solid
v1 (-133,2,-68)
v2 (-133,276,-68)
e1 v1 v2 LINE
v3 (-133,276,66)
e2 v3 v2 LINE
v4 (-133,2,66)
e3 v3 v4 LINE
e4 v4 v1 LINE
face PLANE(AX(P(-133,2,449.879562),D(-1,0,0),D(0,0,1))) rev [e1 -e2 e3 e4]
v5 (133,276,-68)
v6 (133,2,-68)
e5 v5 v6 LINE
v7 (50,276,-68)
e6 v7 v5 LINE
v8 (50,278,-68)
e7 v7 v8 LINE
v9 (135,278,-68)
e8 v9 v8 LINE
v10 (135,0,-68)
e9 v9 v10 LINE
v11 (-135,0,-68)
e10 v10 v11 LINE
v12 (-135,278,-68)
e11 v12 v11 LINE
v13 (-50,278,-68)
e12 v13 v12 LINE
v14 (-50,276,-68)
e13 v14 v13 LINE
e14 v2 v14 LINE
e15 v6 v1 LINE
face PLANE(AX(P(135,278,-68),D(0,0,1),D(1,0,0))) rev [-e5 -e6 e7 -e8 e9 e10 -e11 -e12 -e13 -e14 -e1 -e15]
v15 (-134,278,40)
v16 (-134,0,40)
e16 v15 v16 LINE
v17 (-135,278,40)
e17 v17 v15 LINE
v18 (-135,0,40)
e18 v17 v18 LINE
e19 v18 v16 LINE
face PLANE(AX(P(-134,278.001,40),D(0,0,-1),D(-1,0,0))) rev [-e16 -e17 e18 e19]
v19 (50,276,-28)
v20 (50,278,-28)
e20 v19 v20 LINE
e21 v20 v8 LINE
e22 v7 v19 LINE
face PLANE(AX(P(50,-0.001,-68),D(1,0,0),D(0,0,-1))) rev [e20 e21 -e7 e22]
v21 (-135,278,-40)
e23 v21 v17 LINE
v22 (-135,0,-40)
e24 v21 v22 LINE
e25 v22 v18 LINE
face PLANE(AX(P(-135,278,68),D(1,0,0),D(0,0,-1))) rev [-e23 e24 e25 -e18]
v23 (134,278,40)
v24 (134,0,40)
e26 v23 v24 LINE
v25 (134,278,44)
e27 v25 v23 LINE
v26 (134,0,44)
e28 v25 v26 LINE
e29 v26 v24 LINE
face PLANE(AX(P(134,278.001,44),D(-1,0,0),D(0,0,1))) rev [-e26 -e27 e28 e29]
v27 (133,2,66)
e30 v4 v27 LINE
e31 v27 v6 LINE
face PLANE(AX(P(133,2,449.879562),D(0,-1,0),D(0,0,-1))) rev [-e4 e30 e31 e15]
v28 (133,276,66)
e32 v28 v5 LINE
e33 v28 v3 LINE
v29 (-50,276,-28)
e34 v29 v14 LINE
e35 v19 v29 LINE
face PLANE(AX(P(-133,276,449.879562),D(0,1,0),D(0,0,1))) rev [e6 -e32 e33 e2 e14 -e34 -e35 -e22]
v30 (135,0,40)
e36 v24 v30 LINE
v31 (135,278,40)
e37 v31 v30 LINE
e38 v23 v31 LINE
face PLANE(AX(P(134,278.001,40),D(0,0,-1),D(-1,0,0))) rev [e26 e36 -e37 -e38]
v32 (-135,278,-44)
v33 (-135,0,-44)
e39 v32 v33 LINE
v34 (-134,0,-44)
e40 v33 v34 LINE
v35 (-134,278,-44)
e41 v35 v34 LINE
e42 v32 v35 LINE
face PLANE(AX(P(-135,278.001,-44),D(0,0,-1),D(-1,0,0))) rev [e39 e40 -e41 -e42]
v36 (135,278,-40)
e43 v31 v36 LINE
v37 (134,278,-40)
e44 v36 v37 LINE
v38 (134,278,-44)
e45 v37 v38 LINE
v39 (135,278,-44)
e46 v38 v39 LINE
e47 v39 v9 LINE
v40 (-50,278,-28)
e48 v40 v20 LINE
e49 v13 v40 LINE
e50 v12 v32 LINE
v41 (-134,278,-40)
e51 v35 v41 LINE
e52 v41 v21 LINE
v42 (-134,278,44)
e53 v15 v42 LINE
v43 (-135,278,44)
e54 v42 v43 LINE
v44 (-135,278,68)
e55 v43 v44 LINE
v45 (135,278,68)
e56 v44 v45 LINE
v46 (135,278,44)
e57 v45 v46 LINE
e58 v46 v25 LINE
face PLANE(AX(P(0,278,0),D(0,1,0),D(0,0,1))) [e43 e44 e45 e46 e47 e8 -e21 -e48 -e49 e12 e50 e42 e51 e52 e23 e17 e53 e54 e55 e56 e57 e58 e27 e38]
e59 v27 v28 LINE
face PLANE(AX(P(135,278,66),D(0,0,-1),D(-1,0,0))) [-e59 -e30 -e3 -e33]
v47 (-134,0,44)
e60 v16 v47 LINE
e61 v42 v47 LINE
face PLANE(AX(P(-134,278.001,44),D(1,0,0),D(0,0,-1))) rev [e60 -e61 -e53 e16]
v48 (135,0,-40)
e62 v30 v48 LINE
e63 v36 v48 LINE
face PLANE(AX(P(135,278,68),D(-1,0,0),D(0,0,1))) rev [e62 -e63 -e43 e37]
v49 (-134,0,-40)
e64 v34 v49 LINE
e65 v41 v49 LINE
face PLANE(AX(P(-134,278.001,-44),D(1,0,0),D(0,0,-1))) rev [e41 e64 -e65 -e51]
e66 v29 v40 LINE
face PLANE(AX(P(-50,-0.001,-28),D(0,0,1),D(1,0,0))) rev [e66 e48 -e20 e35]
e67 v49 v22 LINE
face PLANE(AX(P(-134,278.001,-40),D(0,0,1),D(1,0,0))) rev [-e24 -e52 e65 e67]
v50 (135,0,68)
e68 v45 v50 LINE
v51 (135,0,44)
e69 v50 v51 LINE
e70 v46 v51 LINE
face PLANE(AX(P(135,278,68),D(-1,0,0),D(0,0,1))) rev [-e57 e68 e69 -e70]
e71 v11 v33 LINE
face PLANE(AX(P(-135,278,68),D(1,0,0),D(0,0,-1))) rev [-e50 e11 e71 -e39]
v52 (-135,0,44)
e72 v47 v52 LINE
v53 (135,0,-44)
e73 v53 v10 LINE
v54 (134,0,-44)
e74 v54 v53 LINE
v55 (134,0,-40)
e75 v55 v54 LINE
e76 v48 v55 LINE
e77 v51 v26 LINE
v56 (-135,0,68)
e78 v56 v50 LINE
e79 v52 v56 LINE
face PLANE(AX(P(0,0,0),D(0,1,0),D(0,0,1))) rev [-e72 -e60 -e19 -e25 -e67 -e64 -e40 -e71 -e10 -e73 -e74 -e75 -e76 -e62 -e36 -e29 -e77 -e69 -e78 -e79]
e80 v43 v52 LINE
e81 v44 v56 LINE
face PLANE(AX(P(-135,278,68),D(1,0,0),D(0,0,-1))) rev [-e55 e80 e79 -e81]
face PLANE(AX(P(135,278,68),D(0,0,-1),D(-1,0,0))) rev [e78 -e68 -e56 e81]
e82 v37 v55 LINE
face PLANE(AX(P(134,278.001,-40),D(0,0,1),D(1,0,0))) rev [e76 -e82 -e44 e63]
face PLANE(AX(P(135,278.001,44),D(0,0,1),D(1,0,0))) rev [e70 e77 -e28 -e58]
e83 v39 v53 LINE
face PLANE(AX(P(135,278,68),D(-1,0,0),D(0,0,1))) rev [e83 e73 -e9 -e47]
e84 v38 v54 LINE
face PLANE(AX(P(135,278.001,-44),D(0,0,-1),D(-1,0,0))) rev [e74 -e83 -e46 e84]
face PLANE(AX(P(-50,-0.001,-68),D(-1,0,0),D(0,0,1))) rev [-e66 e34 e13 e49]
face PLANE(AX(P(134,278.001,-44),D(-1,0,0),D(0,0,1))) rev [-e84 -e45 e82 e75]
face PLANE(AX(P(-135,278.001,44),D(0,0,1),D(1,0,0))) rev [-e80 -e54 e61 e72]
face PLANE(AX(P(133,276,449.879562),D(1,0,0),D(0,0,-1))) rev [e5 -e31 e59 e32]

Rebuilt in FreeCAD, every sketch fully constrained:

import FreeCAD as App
import Part
import Sketcher

V = App.Vector

doc = App.newDocument("Part")
body = doc.addObject("PartDesign::Body", "Body")

sketch1 = body.newObject("Sketcher::SketchObject", "Sketch")
sketch1.AttachmentSupport = (doc.getObject("XZ_Plane"), [""])
sketch1.MapMode = "FlatFace"
sketch1.addGeometry(Part.LineSegment(V(-135, -68, 0), V(-135, 68, 0)), False)
sketch1.addGeometry(Part.LineSegment(V(-135, 68, 0), V(135, 68, 0)), False)
sketch1.addGeometry(Part.LineSegment(V(135, 68, 0), V(135, -68, 0)), False)
sketch1.addGeometry(Part.LineSegment(V(135, -68, 0), V(-135, -68, 0)), False)
sketch1.addConstraint(Sketcher.Constraint("Coincident", 0, 2, 1, 1))
sketch1.addConstraint(Sketcher.Constraint("Coincident", 1, 2, 2, 1))
sketch1.addConstraint(Sketcher.Constraint("Coincident", 2, 2, 3, 1))
sketch1.addConstraint(Sketcher.Constraint("Coincident", 3, 2, 0, 1))
sketch1.addConstraint(Sketcher.Constraint("Vertical", 0))
sketch1.addConstraint(Sketcher.Constraint("Horizontal", 1))
sketch1.addConstraint(Sketcher.Constraint("Vertical", 2))
sketch1.addConstraint(Sketcher.Constraint("Horizontal", 3))
sketch1.addConstraint(Sketcher.Constraint("Symmetric", 0, 2, 2, 2, -1, 1))
sketch1.addConstraint(Sketcher.Constraint("DistanceX", 1, 1, 1, 2, 270.0))
sketch1.addConstraint(Sketcher.Constraint("DistanceY", 0, 1, 0, 2, 136.0))
pad1 = body.newObject("PartDesign::Pad", "Pad")
pad1.Profile = sketch1
pad1.Length = 278
pad1.Reversed = True

sketch2 = body.newObject("Sketcher::SketchObject", "Sketch001")
sketch2.AttachmentSupport = (doc.getObject("XY_Plane"), [""])
sketch2.MapMode = "FlatFace"
sketch2.AttachmentOffset = App.Placement(V(0, 0, -68), App.Rotation())
sketch2.addGeometry(Part.LineSegment(V(133, 276, 0), V(133, 2, 0)), False)
sketch2.addGeometry(Part.LineSegment(V(133, 2, 0), V(-133, 2, 0)), False)
sketch2.addGeometry(Part.LineSegment(V(-133, 2, 0), V(-133, 276, 0)), False)
sketch2.addGeometry(Part.LineSegment(V(-133, 276, 0), V(133, 276, 0)), False)
sketch2.addConstraint(Sketcher.Constraint("Coincident", 0, 2, 1, 1))
sketch2.addConstraint(Sketcher.Constraint("Coincident", 1, 2, 2, 1))
sketch2.addConstraint(Sketcher.Constraint("Coincident", 2, 2, 3, 1))
sketch2.addConstraint(Sketcher.Constraint("Coincident", 3, 2, 0, 1))
sketch2.addConstraint(Sketcher.Constraint("Vertical", 0))
sketch2.addConstraint(Sketcher.Constraint("Horizontal", 1))
sketch2.addConstraint(Sketcher.Constraint("Vertical", 2))
sketch2.addConstraint(Sketcher.Constraint("Horizontal", 3))
sketch2.addConstraint(Sketcher.Constraint("DistanceX", 1, 2, 1, 1, 266.0))
sketch2.addConstraint(Sketcher.Constraint("DistanceY", 0, 2, 0, 1, 274.0))
sketch2.addConstraint(Sketcher.Constraint("DistanceX", -1, 1, 0, 2, 133.0))
sketch2.addConstraint(Sketcher.Constraint("DistanceY", -1, 1, 0, 2, 2.0))
pocket1 = body.newObject("PartDesign::Pocket", "Pocket")
pocket1.Profile = sketch2
pocket1.Length = 134
pocket1.Reversed = True

sketch3 = body.newObject("Sketcher::SketchObject", "Sketch002")
sketch3.AttachmentSupport = (doc.getObject("XZ_Plane"), [""])
sketch3.MapMode = "FlatFace"
sketch3.AttachmentOffset = App.Placement(V(0, 0, -278), App.Rotation())
sketch3.addGeometry(Part.LineSegment(V(-50, -68, 0), V(-50, -28, 0)), False)
sketch3.addGeometry(Part.LineSegment(V(-50, -28, 0), V(50, -28, 0)), False)
sketch3.addGeometry(Part.LineSegment(V(50, -28, 0), V(50, -68, 0)), False)
sketch3.addGeometry(Part.LineSegment(V(50, -68, 0), V(-50, -68, 0)), False)
sketch3.addConstraint(Sketcher.Constraint("Coincident", 0, 2, 1, 1))
sketch3.addConstraint(Sketcher.Constraint("Coincident", 1, 2, 2, 1))
sketch3.addConstraint(Sketcher.Constraint("Coincident", 2, 2, 3, 1))
sketch3.addConstraint(Sketcher.Constraint("Coincident", 3, 2, 0, 1))
sketch3.addConstraint(Sketcher.Constraint("Vertical", 0))
sketch3.addConstraint(Sketcher.Constraint("Horizontal", 1))
sketch3.addConstraint(Sketcher.Constraint("Vertical", 2))
sketch3.addConstraint(Sketcher.Constraint("Horizontal", 3))
sketch3.addConstraint(Sketcher.Constraint("DistanceX", 1, 1, 1, 2, 100.0))
sketch3.addConstraint(Sketcher.Constraint("DistanceY", 0, 1, 0, 2, 40.0))
sketch3.addConstraint(Sketcher.Constraint("DistanceX", 0, 2, -1, 1, 50.0))
sketch3.addConstraint(Sketcher.Constraint("DistanceY", 0, 2, -1, 1, 28.0))
pocket2 = body.newObject("PartDesign::Pocket", "Pocket001")
pocket2.Profile = sketch3
pocket2.Type = "UpToFirst"
pocket2.Reversed = True

sketch4 = body.newObject("Sketcher::SketchObject", "Sketch003")
sketch4.AttachmentSupport = (doc.getObject("XZ_Plane"), [""])
sketch4.MapMode = "FlatFace"
sketch4.addGeometry(Part.LineSegment(V(-135, 44, 0), V(-135, 40, 0)), False)
sketch4.addGeometry(Part.LineSegment(V(-135, 40, 0), V(-134, 40, 0)), False)
sketch4.addGeometry(Part.LineSegment(V(-134, 40, 0), V(-134, 44, 0)), False)
sketch4.addGeometry(Part.LineSegment(V(-134, 44, 0), V(-135, 44, 0)), False)
sketch4.addConstraint(Sketcher.Constraint("Coincident", 0, 2, 1, 1))
sketch4.addConstraint(Sketcher.Constraint("Coincident", 1, 2, 2, 1))
sketch4.addConstraint(Sketcher.Constraint("Coincident", 2, 2, 3, 1))
sketch4.addConstraint(Sketcher.Constraint("Coincident", 3, 2, 0, 1))
sketch4.addConstraint(Sketcher.Constraint("Vertical", 0))
sketch4.addConstraint(Sketcher.Constraint("Horizontal", 1))
sketch4.addConstraint(Sketcher.Constraint("Vertical", 2))
sketch4.addConstraint(Sketcher.Constraint("Horizontal", 3))
sketch4.addConstraint(Sketcher.Constraint("DistanceX", 1, 1, 1, 2, 1.0))
sketch4.addConstraint(Sketcher.Constraint("DistanceY", 0, 2, 0, 1, 4.0))
sketch4.addConstraint(Sketcher.Constraint("DistanceX", 0, 2, -1, 1, 135.0))
sketch4.addConstraint(Sketcher.Constraint("DistanceY", -1, 1, 0, 2, 40.0))
pocket3 = body.newObject("PartDesign::Pocket", "Pocket002")
pocket3.Profile = sketch4
pocket3.Type = "UpToFirst"

sketch5 = body.newObject("Sketcher::SketchObject", "Sketch004")
sketch5.AttachmentSupport = (doc.getObject("XZ_Plane"), [""])
sketch5.MapMode = "FlatFace"
sketch5.addGeometry(Part.LineSegment(V(-135, -40, 0), V(-135, -44, 0)), False)
sketch5.addGeometry(Part.LineSegment(V(-135, -44, 0), V(-134, -44, 0)), False)
sketch5.addGeometry(Part.LineSegment(V(-134, -44, 0), V(-134, -40, 0)), False)
sketch5.addGeometry(Part.LineSegment(V(-134, -40, 0), V(-135, -40, 0)), False)
sketch5.addConstraint(Sketcher.Constraint("Coincident", 0, 2, 1, 1))
sketch5.addConstraint(Sketcher.Constraint("Coincident", 1, 2, 2, 1))
sketch5.addConstraint(Sketcher.Constraint("Coincident", 2, 2, 3, 1))
sketch5.addConstraint(Sketcher.Constraint("Coincident", 3, 2, 0, 1))
sketch5.addConstraint(Sketcher.Constraint("Vertical", 0))
sketch5.addConstraint(Sketcher.Constraint("Horizontal", 1))
sketch5.addConstraint(Sketcher.Constraint("Vertical", 2))
sketch5.addConstraint(Sketcher.Constraint("Horizontal", 3))
sketch5.addConstraint(Sketcher.Constraint("DistanceX", 1, 1, 1, 2, 1.0))
sketch5.addConstraint(Sketcher.Constraint("DistanceY", 0, 2, 0, 1, 4.0))
sketch5.addConstraint(Sketcher.Constraint("DistanceX", 0, 2, -1, 1, 135.0))
sketch5.addConstraint(Sketcher.Constraint("DistanceY", 0, 2, -1, 1, 44.0))
pocket4 = body.newObject("PartDesign::Pocket", "Pocket003")
pocket4.Profile = sketch5
pocket4.Type = "UpToFirst"

sketch6 = body.newObject("Sketcher::SketchObject", "Sketch005")
sketch6.AttachmentSupport = (doc.getObject("XZ_Plane"), [""])
sketch6.MapMode = "FlatFace"
sketch6.addGeometry(Part.LineSegment(V(134, -40, 0), V(134, -44, 0)), False)
sketch6.addGeometry(Part.LineSegment(V(134, -44, 0), V(135, -44, 0)), False)
sketch6.addGeometry(Part.LineSegment(V(135, -44, 0), V(135, -40, 0)), False)
sketch6.addGeometry(Part.LineSegment(V(135, -40, 0), V(134, -40, 0)), False)
sketch6.addConstraint(Sketcher.Constraint("Coincident", 0, 2, 1, 1))
sketch6.addConstraint(Sketcher.Constraint("Coincident", 1, 2, 2, 1))
sketch6.addConstraint(Sketcher.Constraint("Coincident", 2, 2, 3, 1))
sketch6.addConstraint(Sketcher.Constraint("Coincident", 3, 2, 0, 1))
sketch6.addConstraint(Sketcher.Constraint("Vertical", 0))
sketch6.addConstraint(Sketcher.Constraint("Horizontal", 1))
sketch6.addConstraint(Sketcher.Constraint("Vertical", 2))
sketch6.addConstraint(Sketcher.Constraint("Horizontal", 3))
sketch6.addConstraint(Sketcher.Constraint("DistanceX", 1, 1, 1, 2, 1.0))
sketch6.addConstraint(Sketcher.Constraint("DistanceY", 0, 2, 0, 1, 4.0))
sketch6.addConstraint(Sketcher.Constraint("DistanceX", -1, 1, 0, 2, 134.0))
sketch6.addConstraint(Sketcher.Constraint("DistanceY", 0, 2, -1, 1, 44.0))
pocket5 = body.newObject("PartDesign::Pocket", "Pocket004")
pocket5.Profile = sketch6
pocket5.Type = "UpToFirst"

sketch7 = body.newObject("Sketcher::SketchObject", "Sketch006")
sketch7.AttachmentSupport = (doc.getObject("XZ_Plane"), [""])
sketch7.MapMode = "FlatFace"
sketch7.addGeometry(Part.LineSegment(V(134, 44, 0), V(134, 40, 0)), False)
sketch7.addGeometry(Part.LineSegment(V(134, 40, 0), V(135, 40, 0)), False)
sketch7.addGeometry(Part.LineSegment(V(135, 40, 0), V(135, 44, 0)), False)
sketch7.addGeometry(Part.LineSegment(V(135, 44, 0), V(134, 44, 0)), False)
sketch7.addConstraint(Sketcher.Constraint("Coincident", 0, 2, 1, 1))
sketch7.addConstraint(Sketcher.Constraint("Coincident", 1, 2, 2, 1))
sketch7.addConstraint(Sketcher.Constraint("Coincident", 2, 2, 3, 1))
sketch7.addConstraint(Sketcher.Constraint("Coincident", 3, 2, 0, 1))
sketch7.addConstraint(Sketcher.Constraint("Vertical", 0))
sketch7.addConstraint(Sketcher.Constraint("Horizontal", 1))
sketch7.addConstraint(Sketcher.Constraint("Vertical", 2))
sketch7.addConstraint(Sketcher.Constraint("Horizontal", 3))
sketch7.addConstraint(Sketcher.Constraint("DistanceX", 1, 1, 1, 2, 1.0))
sketch7.addConstraint(Sketcher.Constraint("DistanceY", 0, 2, 0, 1, 4.0))
sketch7.addConstraint(Sketcher.Constraint("DistanceX", -1, 1, 0, 2, 134.0))
sketch7.addConstraint(Sketcher.Constraint("DistanceY", -1, 1, 0, 2, 40.0))
pocket6 = body.newObject("PartDesign::Pocket", "Pocket005")
pocket6.Profile = sketch7
pocket6.Type = "UpToFirst"

doc.recompute()
